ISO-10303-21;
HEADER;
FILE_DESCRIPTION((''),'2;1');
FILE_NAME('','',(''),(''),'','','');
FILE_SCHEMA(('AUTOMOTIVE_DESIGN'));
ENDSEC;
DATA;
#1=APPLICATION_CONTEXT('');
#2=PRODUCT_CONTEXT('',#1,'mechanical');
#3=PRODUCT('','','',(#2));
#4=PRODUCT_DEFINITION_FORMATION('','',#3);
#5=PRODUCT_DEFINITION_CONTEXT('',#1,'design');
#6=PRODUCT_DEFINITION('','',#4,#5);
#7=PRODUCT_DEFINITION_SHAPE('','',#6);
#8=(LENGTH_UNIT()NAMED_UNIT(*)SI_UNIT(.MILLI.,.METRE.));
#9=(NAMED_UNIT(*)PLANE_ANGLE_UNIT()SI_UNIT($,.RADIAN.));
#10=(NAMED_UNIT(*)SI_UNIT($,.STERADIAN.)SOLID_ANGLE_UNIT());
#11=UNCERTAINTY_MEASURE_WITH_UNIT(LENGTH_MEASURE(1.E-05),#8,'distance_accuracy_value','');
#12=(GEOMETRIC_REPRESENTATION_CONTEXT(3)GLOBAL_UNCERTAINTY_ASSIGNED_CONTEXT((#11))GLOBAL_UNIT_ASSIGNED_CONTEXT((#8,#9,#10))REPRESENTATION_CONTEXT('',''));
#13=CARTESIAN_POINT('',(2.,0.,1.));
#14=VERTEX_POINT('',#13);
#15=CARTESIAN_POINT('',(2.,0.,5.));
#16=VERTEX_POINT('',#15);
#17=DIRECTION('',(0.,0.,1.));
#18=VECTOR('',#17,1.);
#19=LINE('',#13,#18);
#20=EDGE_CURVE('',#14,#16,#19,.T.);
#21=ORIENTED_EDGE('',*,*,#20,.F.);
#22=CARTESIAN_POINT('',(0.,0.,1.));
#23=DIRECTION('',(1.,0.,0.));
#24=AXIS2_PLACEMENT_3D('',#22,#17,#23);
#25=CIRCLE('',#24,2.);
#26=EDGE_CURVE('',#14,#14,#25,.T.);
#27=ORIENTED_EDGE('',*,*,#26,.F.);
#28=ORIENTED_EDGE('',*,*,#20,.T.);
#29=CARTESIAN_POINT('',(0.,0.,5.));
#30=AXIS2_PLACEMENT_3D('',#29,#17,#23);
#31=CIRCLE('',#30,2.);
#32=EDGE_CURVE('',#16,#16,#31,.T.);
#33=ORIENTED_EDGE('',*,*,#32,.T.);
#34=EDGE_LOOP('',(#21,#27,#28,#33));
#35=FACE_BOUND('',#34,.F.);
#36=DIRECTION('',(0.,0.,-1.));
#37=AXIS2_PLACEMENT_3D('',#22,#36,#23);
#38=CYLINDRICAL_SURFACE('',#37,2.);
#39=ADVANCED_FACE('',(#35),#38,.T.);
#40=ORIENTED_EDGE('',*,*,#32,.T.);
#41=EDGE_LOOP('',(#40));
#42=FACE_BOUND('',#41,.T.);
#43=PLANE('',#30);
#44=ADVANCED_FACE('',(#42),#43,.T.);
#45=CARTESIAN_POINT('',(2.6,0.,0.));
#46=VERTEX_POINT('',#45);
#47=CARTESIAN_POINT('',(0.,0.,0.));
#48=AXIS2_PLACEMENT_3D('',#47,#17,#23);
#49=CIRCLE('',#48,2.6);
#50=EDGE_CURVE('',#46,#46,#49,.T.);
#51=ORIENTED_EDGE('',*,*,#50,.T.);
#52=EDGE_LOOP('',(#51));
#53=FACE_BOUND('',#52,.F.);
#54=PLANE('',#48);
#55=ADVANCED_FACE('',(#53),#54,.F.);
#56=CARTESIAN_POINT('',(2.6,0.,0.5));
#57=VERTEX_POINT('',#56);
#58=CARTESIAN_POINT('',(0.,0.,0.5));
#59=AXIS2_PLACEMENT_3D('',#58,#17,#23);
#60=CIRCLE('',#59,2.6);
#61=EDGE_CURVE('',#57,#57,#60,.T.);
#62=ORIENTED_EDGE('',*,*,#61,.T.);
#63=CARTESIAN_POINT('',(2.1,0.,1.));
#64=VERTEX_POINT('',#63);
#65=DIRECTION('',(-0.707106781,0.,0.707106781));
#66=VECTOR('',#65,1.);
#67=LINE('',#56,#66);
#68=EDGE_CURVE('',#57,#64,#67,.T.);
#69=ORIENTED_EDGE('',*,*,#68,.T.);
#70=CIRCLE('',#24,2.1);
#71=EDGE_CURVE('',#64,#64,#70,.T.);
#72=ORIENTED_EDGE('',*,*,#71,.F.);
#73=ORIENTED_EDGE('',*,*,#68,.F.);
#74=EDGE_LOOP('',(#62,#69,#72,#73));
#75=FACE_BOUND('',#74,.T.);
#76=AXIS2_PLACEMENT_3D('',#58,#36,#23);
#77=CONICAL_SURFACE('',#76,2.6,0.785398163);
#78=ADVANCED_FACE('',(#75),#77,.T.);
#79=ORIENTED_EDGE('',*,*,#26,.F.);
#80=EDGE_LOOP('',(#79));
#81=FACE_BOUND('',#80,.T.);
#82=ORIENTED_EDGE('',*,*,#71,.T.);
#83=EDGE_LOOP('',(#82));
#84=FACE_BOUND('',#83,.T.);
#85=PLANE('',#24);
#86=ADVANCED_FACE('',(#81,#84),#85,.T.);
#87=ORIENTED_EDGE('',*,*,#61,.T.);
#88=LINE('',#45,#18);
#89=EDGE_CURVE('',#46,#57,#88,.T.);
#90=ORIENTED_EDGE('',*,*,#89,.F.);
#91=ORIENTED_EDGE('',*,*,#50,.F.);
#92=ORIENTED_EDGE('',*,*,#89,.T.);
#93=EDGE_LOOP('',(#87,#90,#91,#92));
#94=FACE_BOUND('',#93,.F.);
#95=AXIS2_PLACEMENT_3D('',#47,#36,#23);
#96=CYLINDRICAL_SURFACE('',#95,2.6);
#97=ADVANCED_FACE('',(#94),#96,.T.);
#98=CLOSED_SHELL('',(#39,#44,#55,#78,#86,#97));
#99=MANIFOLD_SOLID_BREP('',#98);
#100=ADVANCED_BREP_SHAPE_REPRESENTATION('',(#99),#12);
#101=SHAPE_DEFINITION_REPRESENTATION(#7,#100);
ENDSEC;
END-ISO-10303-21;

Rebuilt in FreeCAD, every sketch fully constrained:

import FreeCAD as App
import Part
import Sketcher

V = App.Vector
Q = App.Units.Quantity


def edges_at(feature, points):
    """Names of the edges that pass closest to the given points."""
    edges = feature.Shape.Edges
    near = lambda p: min(range(len(edges)), key=lambda i: edges[i].distToShape(Part.Vertex(*p))[0])
    return sorted({f"Edge{near(p) + 1}" for p in points})

doc = App.newDocument("Part")
body = doc.addObject("PartDesign::Body", "Body")

# Sketch on XY plane
sketch1 = body.newObject("Sketcher::SketchObject", "Sketch")
sketch1.AttachmentSupport = (doc.getObject("XY_Plane"), [""])
sketch1.MapMode = "FlatFace"
sketch1.addGeometry(Part.Circle(V(0, 0, 0), V(0, 0, 1), 2.6), False)
sketch1.addConstraint([
    Sketcher.Constraint("Coincident", 0, 3, -1, 1),
    Sketcher.Constraint("Diameter", 0, Q("5.2 mm")),
])
pad1 = body.newObject("PartDesign::Pad", "Pad")
pad1.Profile = sketch1
pad1.Length = 1

# Sketch on XY plane
sketch2 = body.newObject("Sketcher::SketchObject", "Sketch001")
sketch2.AttachmentSupport = (doc.getObject("XY_Plane"), [""])
sketch2.MapMode = "FlatFace"
sketch2.AttachmentOffset = App.Placement(V(0, 0, 1), App.Rotation())
sketch2.addGeometry(Part.Circle(V(0, 0, 0), V(0, 0, 1), 2), False)
sketch2.addConstraint([
    Sketcher.Constraint("Coincident", 0, 3, -1, 1),
    Sketcher.Constraint("Diameter", 0, Q("4 mm")),
])
pad2 = body.newObject("PartDesign::Pad", "Pad001")
pad2.Profile = sketch2
pad2.Length = 4
doc.recompute()

chamfer = body.newObject("PartDesign::Chamfer", "Chamfer")
chamfer.Base = (pad2, edges_at(pad2, [(-2.6, 0, 1)]))
chamfer.Size = 0.5

doc.recompute()
